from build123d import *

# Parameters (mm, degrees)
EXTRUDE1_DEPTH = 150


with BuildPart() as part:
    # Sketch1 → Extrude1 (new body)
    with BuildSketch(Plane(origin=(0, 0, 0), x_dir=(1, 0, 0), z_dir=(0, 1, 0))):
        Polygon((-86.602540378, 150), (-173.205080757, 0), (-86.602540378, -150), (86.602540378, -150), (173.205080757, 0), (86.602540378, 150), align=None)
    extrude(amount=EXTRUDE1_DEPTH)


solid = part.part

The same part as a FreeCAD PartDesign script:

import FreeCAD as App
import Part
import Sketcher
Q = App.Units.Quantity


def add_polygon(sketch, points):
    """Adds a closed chain of lines whose ends are joined by coincident constraints."""
    first, n = sketch.GeometryCount, len(points)
    for a, b in zip(points, points[1:] + points[:1]):
        sketch.addGeometry(Part.LineSegment(App.Vector(*a, 0), App.Vector(*b, 0)), False)
    for i in range(n):
        sketch.addConstraint(Sketcher.Constraint("Coincident", first + i, 2, first + (i + 1) % n, 1))

doc = App.newDocument("Part")
params = doc.addObject("Spreadsheet::Sheet", "Params")
for row, (alias, value) in enumerate([
    ("pad1_length", "150 mm"),
], start=1):
    params.set(f"A{row}", alias)
    params.set(f"B{row}", "=" + value)
    params.setAlias(f"B{row}", alias)

body = doc.addObject("PartDesign::Body", "Body")

# Sketch on XZ plane
sketch1 = doc.addObject("Sketcher::SketchObject", "Sketch")
body.addObject(sketch1)
sketch1.AttachmentSupport = (doc.XZ_Plane, [""])
sketch1.MapMode = "FlatFace"
add_polygon(sketch1, [(-87, -150), (-173, 0), (-87, 150), (87, 150), (173, 0), (87, -150)])  # lines 0-5
sketch1.addConstraint([
    Sketcher.Constraint("Horizontal", 2),
    Sketcher.Constraint("Horizontal", 5),
    Sketcher.Constraint("Symmetric", 0, 2, 3, 2, -1, 1),
    Sketcher.Constraint("Symmetric", 1, 2, 4, 2, -1, 1),
    Sketcher.Constraint("PointOnObject", 0, 2, -1),
    Sketcher.Constraint("Parallel", 0, 3),
    Sketcher.Constraint("Vertical", 2, 2, 4, 2),
    Sketcher.Constraint("Angle", 0, Q("120 deg")),
    Sketcher.Constraint("DistanceY", -1, 1, 1, 2, Q("150 mm")),
    Sketcher.Constraint("DistanceX", 2, 1, 2, 2, Q("173.205081 mm")),
])
pad1 = doc.addObject("PartDesign::Pad", "Pad")
body.addObject(pad1)
pad1.Profile = sketch1
pad1.setExpression("Length", "Params.pad1_length")
pad1.Reversed = True

doc.recompute()
